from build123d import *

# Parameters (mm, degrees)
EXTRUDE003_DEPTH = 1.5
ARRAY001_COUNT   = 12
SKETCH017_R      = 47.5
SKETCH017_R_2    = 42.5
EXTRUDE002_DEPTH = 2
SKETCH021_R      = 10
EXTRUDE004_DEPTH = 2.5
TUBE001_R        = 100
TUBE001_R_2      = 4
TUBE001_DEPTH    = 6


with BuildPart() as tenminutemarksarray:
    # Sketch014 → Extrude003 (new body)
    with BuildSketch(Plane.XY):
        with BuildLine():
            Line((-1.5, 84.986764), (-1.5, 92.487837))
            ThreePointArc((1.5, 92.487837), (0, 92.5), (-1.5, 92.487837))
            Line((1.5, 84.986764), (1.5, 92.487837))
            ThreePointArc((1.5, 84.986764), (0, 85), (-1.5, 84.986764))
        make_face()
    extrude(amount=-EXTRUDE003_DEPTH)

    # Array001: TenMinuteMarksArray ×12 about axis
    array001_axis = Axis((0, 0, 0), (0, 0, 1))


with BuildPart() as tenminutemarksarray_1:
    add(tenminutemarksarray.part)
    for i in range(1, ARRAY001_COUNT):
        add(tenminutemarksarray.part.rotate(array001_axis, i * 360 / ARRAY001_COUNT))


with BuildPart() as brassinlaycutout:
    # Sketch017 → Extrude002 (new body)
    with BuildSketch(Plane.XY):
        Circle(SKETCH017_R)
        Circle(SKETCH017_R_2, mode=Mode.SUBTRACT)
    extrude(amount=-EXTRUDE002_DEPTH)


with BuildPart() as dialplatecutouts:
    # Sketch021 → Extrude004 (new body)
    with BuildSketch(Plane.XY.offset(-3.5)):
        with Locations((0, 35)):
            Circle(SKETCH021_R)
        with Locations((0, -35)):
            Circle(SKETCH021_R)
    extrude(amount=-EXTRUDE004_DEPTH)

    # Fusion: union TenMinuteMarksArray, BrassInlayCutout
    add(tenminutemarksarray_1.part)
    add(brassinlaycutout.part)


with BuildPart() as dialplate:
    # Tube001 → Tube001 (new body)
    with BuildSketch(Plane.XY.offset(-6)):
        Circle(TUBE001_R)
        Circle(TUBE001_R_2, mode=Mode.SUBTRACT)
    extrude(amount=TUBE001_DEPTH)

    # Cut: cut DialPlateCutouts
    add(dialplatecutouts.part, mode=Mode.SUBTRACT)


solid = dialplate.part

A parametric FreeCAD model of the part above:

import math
import FreeCAD as App
import Part
import Sketcher

doc = App.newDocument("Part")
body = doc.addObject("PartDesign::Body", "Body")

sketch1 = body.newObject("Sketcher::SketchObject", "Sketch")
sketch1.AttachmentSupport = (doc.getObject("XY_Plane"), [""])
sketch1.MapMode = "FlatFace"
sketch1.addGeometry([
    Part.LineSegment(App.Vector(-1.5, 92.5, 0), App.Vector(-1.5, 85, 0)),
    Part.ArcOfCircle(Part.Circle(App.Vector(0, 0, 0), App.Vector(0, 0, 1), 85), math.radians(88.99), math.radians(91.01)),
    Part.LineSegment(App.Vector(1.5, 85, 0), App.Vector(1.5, 92.5, 0)),
    Part.ArcOfCircle(Part.Circle(App.Vector(0, 0, 0), App.Vector(0, 0, 1), 92.5), math.radians(89.07), math.radians(90.93)),
], False)
sketch1.addConstraint([
    Sketcher.Constraint("Coincident", 0, 2, 1, 2),
    Sketcher.Constraint("Coincident", 1, 1, 2, 1),
    Sketcher.Constraint("Coincident", 2, 2, 3, 1),
    Sketcher.Constraint("Coincident", 3, 2, 0, 1),
    Sketcher.Constraint("Vertical", 0),
    Sketcher.Constraint("Vertical", 2),
    Sketcher.Constraint("Symmetric", 0, 2, 1, 1, -2),
    Sketcher.Constraint("PointOnObject", 3, 3, -2),
    Sketcher.Constraint("DistanceX", 0, 2, 1, 1, 3.0),
    Sketcher.Constraint("Radius", 3, 92.49971),
    Sketcher.Constraint("Radius", 1, 85.002085),
    Sketcher.Constraint("DistanceY", 0, 2, 0, 1, 7.501073),
    Sketcher.Constraint("DistanceY", -1, 1, 3, 3, 0.00029),
])
pad1 = body.newObject("PartDesign::Pad", "Pad")
pad1.Profile = sketch1
pad1.Length = 1.5
pad1.Reversed = True
body2 = doc.addObject("PartDesign::Body", "Body001")
body2.AllowCompound = True
doc.recompute()

body2.BaseFeature = body
doc.recompute()

body3 = doc.addObject("PartDesign::Body", "Body002")
body3.BaseFeature = body
body3.Placement = App.Placement(App.Vector(0, 0, 0), App.Rotation(App.Vector(0, 0, 1), 30))
boolean = body2.newObject("PartDesign::Boolean", "Boolean")
boolean.Type = "Fuse"
boolean.addObjects([body3])
doc.recompute()

body4 = doc.addObject("PartDesign::Body", "Body003")
body4.BaseFeature = body
body4.Placement = App.Placement(App.Vector(0, 0, 0), App.Rotation(App.Vector(0, 0, 1), 60))
boolean2 = body2.newObject("PartDesign::Boolean", "Boolean001")
boolean2.Type = "Fuse"
boolean2.addObjects([body4])
doc.recompute()

body5 = doc.addObject("PartDesign::Body", "Body004")
body5.BaseFeature = body
body5.Placement = App.Placement(App.Vector(0, 0, 0), App.Rotation(App.Vector(0, 0, 1), 90))
boolean3 = body2.newObject("PartDesign::Boolean", "Boolean002")
boolean3.Type = "Fuse"
boolean3.addObjects([body5])
doc.recompute()

body6 = doc.addObject("PartDesign::Body", "Body005")
body6.BaseFeature = body
body6.Placement = App.Placement(App.Vector(0, 0, 0), App.Rotation(App.Vector(0, 0, 1), 120))
boolean4 = body2.newObject("PartDesign::Boolean", "Boolean003")
boolean4.Type = "Fuse"
boolean4.addObjects([body6])
doc.recompute()

body7 = doc.addObject("PartDesign::Body", "Body006")
body7.BaseFeature = body
body7.Placement = App.Placement(App.Vector(0, 0, 0), App.Rotation(App.Vector(0, 0, 1), 150))
boolean5 = body2.newObject("PartDesign::Boolean", "Boolean004")
boolean5.Type = "Fuse"
boolean5.addObjects([body7])
doc.recompute()

body8 = doc.addObject("PartDesign::Body", "Body007")
body8.BaseFeature = body
body8.Placement = App.Placement(App.Vector(0, 0, 0), App.Rotation(App.Vector(0, 0, 1), 180))
boolean6 = body2.newObject("PartDesign::Boolean", "Boolean005")
boolean6.Type = "Fuse"
boolean6.addObjects([body8])
doc.recompute()

body9 = doc.addObject("PartDesign::Body", "Body008")
body9.BaseFeature = body
body9.Placement = App.Placement(App.Vector(0, 0, 0), App.Rotation(App.Vector(0, 0, 1), 210))
boolean7 = body2.newObject("PartDesign::Boolean", "Boolean006")
boolean7.Type = "Fuse"
boolean7.addObjects([body9])
doc.recompute()

body10 = doc.addObject("PartDesign::Body", "Body009")
body10.BaseFeature = body
body10.Placement = App.Placement(App.Vector(0, 0, 0), App.Rotation(App.Vector(0, 0, 1), 240))
boolean8 = body2.newObject("PartDesign::Boolean", "Boolean007")
boolean8.Type = "Fuse"
boolean8.addObjects([body10])
doc.recompute()

body11 = doc.addObject("PartDesign::Body", "Body010")
body11.BaseFeature = body
body11.Placement = App.Placement(App.Vector(0, 0, 0), App.Rotation(App.Vector(0, 0, 1), 270))
boolean9 = body2.newObject("PartDesign::Boolean", "Boolean008")
boolean9.Type = "Fuse"
boolean9.addObjects([body11])
doc.recompute()

body12 = doc.addObject("PartDesign::Body", "Body011")
body12.BaseFeature = body
body12.Placement = App.Placement(App.Vector(0, 0, 0), App.Rotation(App.Vector(0, 0, 1), 300))
boolean10 = body2.newObject("PartDesign::Boolean", "Boolean009")
boolean10.Type = "Fuse"
boolean10.addObjects([body12])
doc.recompute()

body.Placement = App.Placement(App.Vector(0, 0, 0), App.Rotation(App.Vector(0, 0, 1), 330))
boolean11 = body2.newObject("PartDesign::Boolean", "Boolean010")
boolean11.Type = "Fuse"
boolean11.addObjects([body])
body13 = doc.addObject("PartDesign::Body", "Body012")

sketch2 = body13.newObject("Sketcher::SketchObject", "Sketch001")
sketch2.AttachmentSupport = (doc.getObject("XY_Plane012"), [""])
sketch2.MapMode = "FlatFace"
sketch2.addGeometry([
    Part.Circle(App.Vector(0, 0, 0), App.Vector(0, 0, 1), 48),
    Part.Circle(App.Vector(0, 0, 0), App.Vector(0, 0, 1), 42),
], False)
sketch2.addConstraint([
    Sketcher.Constraint("Coincident", 0, 3, -1, 1),
    Sketcher.Constraint("Coincident", 1, 3, -1, 1),
    Sketcher.Constraint("Diameter", 0, 95.0),
    Sketcher.Constraint("Diameter", 1, 85.0),
])
pad2 = body13.newObject("PartDesign::Pad", "Pad001")
pad2.Profile = sketch2
pad2.Length = 2
pad2.Reversed = True
body14 = doc.addObject("PartDesign::Body", "Body013")
body14.AllowCompound = True

sketch3 = body14.newObject("Sketcher::SketchObject", "Sketch002")
sketch3.AttachmentSupport = (doc.getObject("XY_Plane013"), [""])
sketch3.MapMode = "FlatFace"
sketch3.AttachmentOffset = App.Placement(App.Vector(0, 0, -3.5), App.Rotation())
sketch3.addGeometry([
    Part.Circle(App.Vector(0, 35, 0), App.Vector(0, 0, 1), 10),
    Part.Circle(App.Vector(0, -35, 0), App.Vector(0, 0, 1), 10),
], False)
sketch3.addConstraint([
    Sketcher.Constraint("Equal", 0, 1),
    Sketcher.Constraint("Symmetric", 0, 3, 1, 3, -1, 1),
    Sketcher.Constraint("PointOnObject", 0, 3, -2),
    Sketcher.Constraint("Diameter", 0, 20.0),
    Sketcher.Constraint("DistanceY", -1, 1, 0, 3, 35.0),
])
pad3 = body14.newObject("PartDesign::Pad", "Pad002")
pad3.Profile = sketch3
pad3.Length = 2.5
pad3.Reversed = True
doc.recompute()

boolean12 = body14.newObject("PartDesign::Boolean", "Boolean011")
boolean12.Type = "Fuse"
boolean12.addObjects([body2])
doc.recompute()

boolean13 = body14.newObject("PartDesign::Boolean", "Boolean012")
boolean13.Type = "Fuse"
boolean13.addObjects([body13])
body15 = doc.addObject("PartDesign::Body", "Body014")

sketch4 = body15.newObject("Sketcher::SketchObject", "Sketch003")
sketch4.AttachmentSupport = (doc.getObject("XY_Plane014"), [""])
sketch4.MapMode = "FlatFace"
sketch4.AttachmentOffset = App.Placement(App.Vector(0, 0, -6), App.Rotation())
sketch4.addGeometry([
    Part.Circle(App.Vector(0, 0, 0), App.Vector(0, 0, 1), 100),
    Part.Circle(App.Vector(0, 0, 0), App.Vector(0, 0, 1), 4),
], False)
sketch4.addConstraint([
    Sketcher.Constraint("Coincident", 0, 3, -1, 1),
    Sketcher.Constraint("Coincident", 1, 3, -1, 1),
    Sketcher.Constraint("Diameter", 0, 200.0),
    Sketcher.Constraint("Diameter", 1, 8.0),
])
pad4 = body15.newObject("PartDesign::Pad", "Pad003")
pad4.Profile = sketch4
pad4.Length = 6
doc.recompute()

boolean14 = body15.newObject("PartDesign::Boolean", "Boolean013")
boolean14.Type = "Cut"
boolean14.addObjects([body14])

doc.recompute()
